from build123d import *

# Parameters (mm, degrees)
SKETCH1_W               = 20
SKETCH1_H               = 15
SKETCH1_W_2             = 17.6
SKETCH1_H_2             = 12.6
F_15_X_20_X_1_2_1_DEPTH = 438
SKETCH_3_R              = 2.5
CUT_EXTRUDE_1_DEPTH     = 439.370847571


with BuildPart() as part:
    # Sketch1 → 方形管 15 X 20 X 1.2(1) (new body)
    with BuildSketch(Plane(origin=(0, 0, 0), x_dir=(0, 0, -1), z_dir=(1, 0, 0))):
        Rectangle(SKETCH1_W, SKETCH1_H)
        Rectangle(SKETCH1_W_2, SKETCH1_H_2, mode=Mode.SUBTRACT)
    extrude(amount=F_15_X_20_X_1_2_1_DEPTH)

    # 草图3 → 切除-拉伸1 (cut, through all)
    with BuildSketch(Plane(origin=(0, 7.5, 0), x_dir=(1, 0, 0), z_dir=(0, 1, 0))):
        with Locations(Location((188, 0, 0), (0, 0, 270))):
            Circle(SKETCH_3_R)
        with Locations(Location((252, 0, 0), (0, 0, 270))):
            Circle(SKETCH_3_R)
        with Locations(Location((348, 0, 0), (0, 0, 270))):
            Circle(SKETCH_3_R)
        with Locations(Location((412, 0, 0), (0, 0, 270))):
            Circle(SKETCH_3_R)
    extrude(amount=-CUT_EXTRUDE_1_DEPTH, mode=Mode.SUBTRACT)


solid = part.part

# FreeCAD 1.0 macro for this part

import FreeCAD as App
import Part
import Sketcher
from FreeCAD import Vector

doc = App.newDocument("Part")
body = doc.addObject("PartDesign::Body", "Body")

sketch1 = body.newObject("Sketcher::SketchObject", "Sketch")
sketch1.AttachmentSupport = (doc.getObject("YZ_Plane"), [""])
sketch1.MapMode = "FlatFace"
sketch1.addGeometry(Part.LineSegment(Vector(8, 10, 0), Vector(-8, 10, 0)), False)
sketch1.addGeometry(Part.LineSegment(Vector(-8, 10, 0), Vector(-8, -10, 0)), False)
sketch1.addGeometry(Part.LineSegment(Vector(-8, -10, 0), Vector(8, -10, 0)), False)
sketch1.addGeometry(Part.LineSegment(Vector(8, -10, 0), Vector(8, 10, 0)), False)
sketch1.addGeometry(Part.LineSegment(Vector(-6, -9, 0), Vector(-6, 9, 0)), False)
sketch1.addGeometry(Part.LineSegment(Vector(-6, 9, 0), Vector(6, 9, 0)), False)
sketch1.addGeometry(Part.LineSegment(Vector(6, 9, 0), Vector(6, -9, 0)), False)
sketch1.addGeometry(Part.LineSegment(Vector(6, -9, 0), Vector(-6, -9, 0)), False)
sketch1.addConstraint(Sketcher.Constraint("Coincident", 0, 2, 1, 1))
sketch1.addConstraint(Sketcher.Constraint("Coincident", 1, 2, 2, 1))
sketch1.addConstraint(Sketcher.Constraint("Coincident", 2, 2, 3, 1))
sketch1.addConstraint(Sketcher.Constraint("Coincident", 3, 2, 0, 1))
sketch1.addConstraint(Sketcher.Constraint("Coincident", 4, 2, 5, 1))
sketch1.addConstraint(Sketcher.Constraint("Coincident", 5, 2, 6, 1))
sketch1.addConstraint(Sketcher.Constraint("Coincident", 6, 2, 7, 1))
sketch1.addConstraint(Sketcher.Constraint("Coincident", 7, 2, 4, 1))
sketch1.addConstraint(Sketcher.Constraint("Horizontal", 0))
sketch1.addConstraint(Sketcher.Constraint("Vertical", 1))
sketch1.addConstraint(Sketcher.Constraint("Horizontal", 2))
sketch1.addConstraint(Sketcher.Constraint("Vertical", 3))
sketch1.addConstraint(Sketcher.Constraint("Vertical", 4))
sketch1.addConstraint(Sketcher.Constraint("Horizontal", 5))
sketch1.addConstraint(Sketcher.Constraint("Vertical", 6))
sketch1.addConstraint(Sketcher.Constraint("Horizontal", 7))
sketch1.addConstraint(Sketcher.Constraint("Symmetric", 0, 2, 2, 2, -1, 1))
sketch1.addConstraint(Sketcher.Constraint("Symmetric", 4, 2, 6, 2, -1, 1))
sketch1.addConstraint(Sketcher.Constraint("DistanceX", 0, 2, 0, 1, 15.0))
sketch1.addConstraint(Sketcher.Constraint("DistanceY", 1, 2, 1, 1, 20.0))
sketch1.addConstraint(Sketcher.Constraint("DistanceX", 5, 1, 5, 2, 12.6))
sketch1.addConstraint(Sketcher.Constraint("DistanceY", 4, 1, 4, 2, 17.6))
pad1 = body.newObject("PartDesign::Pad", "Pad")
pad1.Profile = sketch1
pad1.Length = 438

sketch2 = body.newObject("Sketcher::SketchObject", "Sketch001")
sketch2.AttachmentSupport = (doc.getObject("XZ_Plane"), [""])
sketch2.MapMode = "FlatFace"
sketch2.AttachmentOffset = App.Placement(Vector(0, 0, -7.5), App.Rotation())
sketch2.addGeometry(Part.Circle(Vector(188, 0, 0), Vector(0, 0, 1), 2.5), False)
sketch2.addGeometry(Part.Circle(Vector(252, 0, 0), Vector(0, 0, 1), 2.5), False)
sketch2.addGeometry(Part.Circle(Vector(348, 0, 0), Vector(0, 0, 1), 2.5), False)
sketch2.addGeometry(Part.Circle(Vector(412, 0, 0), Vector(0, 0, 1), 2.5), False)
sketch2.addConstraint(Sketcher.Constraint("Equal", 0, 1))
sketch2.addConstraint(Sketcher.Constraint("Equal", 1, 2))
sketch2.addConstraint(Sketcher.Constraint("Equal", 2, 3))
sketch2.addConstraint(Sketcher.Constraint("PointOnObject", 0, 3, -1))
sketch2.addConstraint(Sketcher.Constraint("PointOnObject", 1, 3, -1))
sketch2.addConstraint(Sketcher.Constraint("PointOnObject", 2, 3, -1))
sketch2.addConstraint(Sketcher.Constraint("PointOnObject", 3, 3, -1))
sketch2.addConstraint(Sketcher.Constraint("Diameter", 0, 5.0))
sketch2.addConstraint(Sketcher.Constraint("DistanceX", -1, 1, 0, 3, 188.0))
sketch2.addConstraint(Sketcher.Constraint("DistanceX", -1, 1, 1, 3, 252.0))
sketch2.addConstraint(Sketcher.Constraint("DistanceX", -1, 1, 2, 3, 348.0))
sketch2.addConstraint(Sketcher.Constraint("DistanceX", -1, 1, 3, 3, 412.0))
pocket1 = body.newObject("PartDesign::Pocket", "Pocket")
pocket1.Profile = sketch2
pocket1.Type = "ThroughAll"
pocket1.Reversed = True

doc.recompute()
